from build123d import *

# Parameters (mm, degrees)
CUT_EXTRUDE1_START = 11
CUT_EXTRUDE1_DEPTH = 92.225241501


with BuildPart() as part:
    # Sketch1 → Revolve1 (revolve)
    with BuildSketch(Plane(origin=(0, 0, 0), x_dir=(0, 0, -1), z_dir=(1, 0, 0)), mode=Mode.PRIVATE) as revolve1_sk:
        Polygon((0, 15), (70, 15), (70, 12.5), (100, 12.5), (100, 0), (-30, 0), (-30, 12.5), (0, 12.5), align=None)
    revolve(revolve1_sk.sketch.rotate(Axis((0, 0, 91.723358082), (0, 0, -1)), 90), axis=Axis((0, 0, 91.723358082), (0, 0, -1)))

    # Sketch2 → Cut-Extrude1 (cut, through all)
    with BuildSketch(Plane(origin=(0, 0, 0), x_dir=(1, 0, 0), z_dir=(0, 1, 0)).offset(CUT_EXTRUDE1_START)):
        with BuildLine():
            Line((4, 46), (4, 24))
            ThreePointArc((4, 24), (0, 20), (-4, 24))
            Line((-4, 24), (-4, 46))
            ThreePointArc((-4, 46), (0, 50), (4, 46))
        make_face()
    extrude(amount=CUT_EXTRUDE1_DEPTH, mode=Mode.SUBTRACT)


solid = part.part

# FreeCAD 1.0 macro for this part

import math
import FreeCAD as App
import Part
import Sketcher

doc = App.newDocument("Part")
body = doc.addObject("PartDesign::Body", "Body")

sketch1 = doc.addObject("Sketcher::SketchObject", "Sketch")
body.addObject(sketch1)
sketch1.AttachmentSupport = (doc.YZ_Plane, [""])
sketch1.MapMode = "FlatFace"
sketch1.addGeometry([
    Part.LineSegment(App.Vector(15, -70, 0), App.Vector(15, 0, 0)),
    Part.LineSegment(App.Vector(15, 0, 0), App.Vector(12.5, 0, 0)),
    Part.LineSegment(App.Vector(12.5, 0, 0), App.Vector(12.5, 30, 0)),
    Part.LineSegment(App.Vector(12.5, 30, 0), App.Vector(0, 30, 0)),
    Part.LineSegment(App.Vector(0, 30, 0), App.Vector(0, -100, 0)),
    Part.LineSegment(App.Vector(0, -100, 0), App.Vector(12.5, -100, 0)),
    Part.LineSegment(App.Vector(12.5, -100, 0), App.Vector(12.5, -70, 0)),
    Part.LineSegment(App.Vector(12.5, -70, 0), App.Vector(15, -70, 0)),
], False)
sketch1.addConstraint([
    Sketcher.Constraint("Coincident", 0, 2, 1, 1),
    Sketcher.Constraint("Coincident", 1, 2, 2, 1),
    Sketcher.Constraint("Coincident", 2, 2, 3, 1),
    Sketcher.Constraint("Coincident", 3, 2, 4, 1),
    Sketcher.Constraint("Coincident", 4, 2, 5, 1),
    Sketcher.Constraint("Coincident", 5, 2, 6, 1),
    Sketcher.Constraint("Coincident", 6, 2, 7, 1),
    Sketcher.Constraint("Coincident", 7, 2, 0, 1),
    Sketcher.Constraint("Vertical", 0),
    Sketcher.Constraint("Horizontal", 1),
    Sketcher.Constraint("Vertical", 2),
    Sketcher.Constraint("Horizontal", 3),
    Sketcher.Constraint("Vertical", 4),
    Sketcher.Constraint("Horizontal", 5),
    Sketcher.Constraint("Vertical", 6),
    Sketcher.Constraint("Horizontal", 7),
    Sketcher.Constraint("PointOnObject", 0, 2, -1),
    Sketcher.Constraint("PointOnObject", 3, 2, -2),
    Sketcher.Constraint("Vertical", 2, 2, 5, 2),
    Sketcher.Constraint("Equal", 2, 6),
    Sketcher.Constraint("DistanceY", 0, 1, 0, 2, 70.0),
    Sketcher.Constraint("DistanceY", 2, 1, 2, 2, 30.0),
    Sketcher.Constraint("DistanceX", 1, 2, 1, 1, 2.5),
    Sketcher.Constraint("DistanceX", 3, 2, 3, 1, 12.5),
])
revolution = doc.addObject("PartDesign::Revolution", "Revolution")
body.addObject(revolution)
revolution.Profile = sketch1
revolution.ReferenceAxis = (sketch1, ["V_Axis"])
revolution.Angle = 360

sketch2 = doc.addObject("Sketcher::SketchObject", "Sketch001")
body.addObject(sketch2)
sketch2.AttachmentSupport = (doc.XZ_Plane, [""])
sketch2.MapMode = "FlatFace"
sketch2.AttachmentOffset = App.Placement(App.Vector(0, 0, -11), App.Rotation())
sketch2.addGeometry([
    Part.LineSegment(App.Vector(4, -24, 0), App.Vector(4, -46, 0)),
    Part.ArcOfCircle(Part.Circle(App.Vector(0, -46, 0), App.Vector(0, 0, 1), 4), math.radians(180), math.radians(360)),
    Part.LineSegment(App.Vector(-4, -46, 0), App.Vector(-4, -24, 0)),
    Part.ArcOfCircle(Part.Circle(App.Vector(0, -24, 0), App.Vector(0, 0, 1), 4), math.radians(0), math.radians(180)),
], False)
sketch2.addConstraint([
    Sketcher.Constraint("Tangent", 0, 2, 1, 2),
    Sketcher.Constraint("Tangent", 1, 1, 2, 1),
    Sketcher.Constraint("Tangent", 2, 2, 3, 2),
    Sketcher.Constraint("Tangent", 3, 1, 0, 1),
    Sketcher.Constraint("Vertical", 0),
    Sketcher.Constraint("Vertical", 2),
    Sketcher.Constraint("PointOnObject", 1, 3, -2),
    Sketcher.Constraint("Radius", 1, 4.0),
    Sketcher.Constraint("DistanceY", 0, 2, 0, 1, 22.0),
    Sketcher.Constraint("DistanceY", 1, 3, -1, 1, 46.0),
])
pocket1 = doc.addObject("PartDesign::Pocket", "Pocket")
body.addObject(pocket1)
pocket1.Profile = sketch2
pocket1.Type = "ThroughAll"

doc.recompute()
